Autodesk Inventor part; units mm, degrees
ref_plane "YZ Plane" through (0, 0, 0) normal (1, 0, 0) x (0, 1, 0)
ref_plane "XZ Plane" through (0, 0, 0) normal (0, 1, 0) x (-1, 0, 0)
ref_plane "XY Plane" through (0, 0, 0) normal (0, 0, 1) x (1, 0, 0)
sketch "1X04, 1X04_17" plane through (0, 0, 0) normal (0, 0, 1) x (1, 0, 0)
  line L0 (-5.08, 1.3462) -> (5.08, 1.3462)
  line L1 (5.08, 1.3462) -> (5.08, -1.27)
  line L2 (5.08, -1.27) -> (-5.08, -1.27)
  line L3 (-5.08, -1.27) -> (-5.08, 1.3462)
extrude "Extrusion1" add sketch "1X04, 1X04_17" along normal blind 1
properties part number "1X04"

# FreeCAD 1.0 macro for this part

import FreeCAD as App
import Part
import Sketcher
from FreeCAD import Vector
Q = App.Units.Quantity


def add_polygon(sketch, points):
    """Adds a closed chain of lines whose ends are joined by coincident constraints."""
    first, n = sketch.GeometryCount, len(points)
    for a, b in zip(points, points[1:] + points[:1]):
        sketch.addGeometry(Part.LineSegment(App.Vector(*a, 0), App.Vector(*b, 0)), False)
    for i in range(n):
        sketch.addConstraint(Sketcher.Constraint("Coincident", first + i, 2, first + (i + 1) % n, 1))

doc = App.newDocument("Part")
body = doc.addObject("PartDesign::Body", "Body")

sketch1 = doc.addObject("Sketcher::SketchObject", "Sketch")
body.addObject(sketch1)
sketch1.AttachmentSupport = (doc.XY_Plane, [""])
sketch1.MapMode = "FlatFace"
add_polygon(sketch1, [(5.08, 1.3462), (-5.08, 1.3462), (-5.08, -1.27), (5.08, -1.27)])
sketch1.addConstraint(Sketcher.Constraint("Horizontal", 0))
sketch1.addConstraint(Sketcher.Constraint("Vertical", 1))
sketch1.addConstraint(Sketcher.Constraint("Horizontal", 2))
sketch1.addConstraint(Sketcher.Constraint("Vertical", 3))
sketch1.addConstraint(Sketcher.Constraint("DistanceX", 0, 2, 0, 1, Q("0.4 in")))
sketch1.addConstraint(Sketcher.Constraint("DistanceX", 0, 2, -1, 1, Q("0.2 in")))
sketch1.addConstraint(Sketcher.Constraint("DistanceY", 1, 2, 1, 1, Q("0.103 in")))
sketch1.addConstraint(Sketcher.Constraint("DistanceY", 1, 2, -1, 1, Q("0.05 in")))
pad1 = doc.addObject("PartDesign::Pad", "Pad")
body.addObject(pad1)
pad1.Profile = sketch1
pad1.Length = 1

doc.recompute()
